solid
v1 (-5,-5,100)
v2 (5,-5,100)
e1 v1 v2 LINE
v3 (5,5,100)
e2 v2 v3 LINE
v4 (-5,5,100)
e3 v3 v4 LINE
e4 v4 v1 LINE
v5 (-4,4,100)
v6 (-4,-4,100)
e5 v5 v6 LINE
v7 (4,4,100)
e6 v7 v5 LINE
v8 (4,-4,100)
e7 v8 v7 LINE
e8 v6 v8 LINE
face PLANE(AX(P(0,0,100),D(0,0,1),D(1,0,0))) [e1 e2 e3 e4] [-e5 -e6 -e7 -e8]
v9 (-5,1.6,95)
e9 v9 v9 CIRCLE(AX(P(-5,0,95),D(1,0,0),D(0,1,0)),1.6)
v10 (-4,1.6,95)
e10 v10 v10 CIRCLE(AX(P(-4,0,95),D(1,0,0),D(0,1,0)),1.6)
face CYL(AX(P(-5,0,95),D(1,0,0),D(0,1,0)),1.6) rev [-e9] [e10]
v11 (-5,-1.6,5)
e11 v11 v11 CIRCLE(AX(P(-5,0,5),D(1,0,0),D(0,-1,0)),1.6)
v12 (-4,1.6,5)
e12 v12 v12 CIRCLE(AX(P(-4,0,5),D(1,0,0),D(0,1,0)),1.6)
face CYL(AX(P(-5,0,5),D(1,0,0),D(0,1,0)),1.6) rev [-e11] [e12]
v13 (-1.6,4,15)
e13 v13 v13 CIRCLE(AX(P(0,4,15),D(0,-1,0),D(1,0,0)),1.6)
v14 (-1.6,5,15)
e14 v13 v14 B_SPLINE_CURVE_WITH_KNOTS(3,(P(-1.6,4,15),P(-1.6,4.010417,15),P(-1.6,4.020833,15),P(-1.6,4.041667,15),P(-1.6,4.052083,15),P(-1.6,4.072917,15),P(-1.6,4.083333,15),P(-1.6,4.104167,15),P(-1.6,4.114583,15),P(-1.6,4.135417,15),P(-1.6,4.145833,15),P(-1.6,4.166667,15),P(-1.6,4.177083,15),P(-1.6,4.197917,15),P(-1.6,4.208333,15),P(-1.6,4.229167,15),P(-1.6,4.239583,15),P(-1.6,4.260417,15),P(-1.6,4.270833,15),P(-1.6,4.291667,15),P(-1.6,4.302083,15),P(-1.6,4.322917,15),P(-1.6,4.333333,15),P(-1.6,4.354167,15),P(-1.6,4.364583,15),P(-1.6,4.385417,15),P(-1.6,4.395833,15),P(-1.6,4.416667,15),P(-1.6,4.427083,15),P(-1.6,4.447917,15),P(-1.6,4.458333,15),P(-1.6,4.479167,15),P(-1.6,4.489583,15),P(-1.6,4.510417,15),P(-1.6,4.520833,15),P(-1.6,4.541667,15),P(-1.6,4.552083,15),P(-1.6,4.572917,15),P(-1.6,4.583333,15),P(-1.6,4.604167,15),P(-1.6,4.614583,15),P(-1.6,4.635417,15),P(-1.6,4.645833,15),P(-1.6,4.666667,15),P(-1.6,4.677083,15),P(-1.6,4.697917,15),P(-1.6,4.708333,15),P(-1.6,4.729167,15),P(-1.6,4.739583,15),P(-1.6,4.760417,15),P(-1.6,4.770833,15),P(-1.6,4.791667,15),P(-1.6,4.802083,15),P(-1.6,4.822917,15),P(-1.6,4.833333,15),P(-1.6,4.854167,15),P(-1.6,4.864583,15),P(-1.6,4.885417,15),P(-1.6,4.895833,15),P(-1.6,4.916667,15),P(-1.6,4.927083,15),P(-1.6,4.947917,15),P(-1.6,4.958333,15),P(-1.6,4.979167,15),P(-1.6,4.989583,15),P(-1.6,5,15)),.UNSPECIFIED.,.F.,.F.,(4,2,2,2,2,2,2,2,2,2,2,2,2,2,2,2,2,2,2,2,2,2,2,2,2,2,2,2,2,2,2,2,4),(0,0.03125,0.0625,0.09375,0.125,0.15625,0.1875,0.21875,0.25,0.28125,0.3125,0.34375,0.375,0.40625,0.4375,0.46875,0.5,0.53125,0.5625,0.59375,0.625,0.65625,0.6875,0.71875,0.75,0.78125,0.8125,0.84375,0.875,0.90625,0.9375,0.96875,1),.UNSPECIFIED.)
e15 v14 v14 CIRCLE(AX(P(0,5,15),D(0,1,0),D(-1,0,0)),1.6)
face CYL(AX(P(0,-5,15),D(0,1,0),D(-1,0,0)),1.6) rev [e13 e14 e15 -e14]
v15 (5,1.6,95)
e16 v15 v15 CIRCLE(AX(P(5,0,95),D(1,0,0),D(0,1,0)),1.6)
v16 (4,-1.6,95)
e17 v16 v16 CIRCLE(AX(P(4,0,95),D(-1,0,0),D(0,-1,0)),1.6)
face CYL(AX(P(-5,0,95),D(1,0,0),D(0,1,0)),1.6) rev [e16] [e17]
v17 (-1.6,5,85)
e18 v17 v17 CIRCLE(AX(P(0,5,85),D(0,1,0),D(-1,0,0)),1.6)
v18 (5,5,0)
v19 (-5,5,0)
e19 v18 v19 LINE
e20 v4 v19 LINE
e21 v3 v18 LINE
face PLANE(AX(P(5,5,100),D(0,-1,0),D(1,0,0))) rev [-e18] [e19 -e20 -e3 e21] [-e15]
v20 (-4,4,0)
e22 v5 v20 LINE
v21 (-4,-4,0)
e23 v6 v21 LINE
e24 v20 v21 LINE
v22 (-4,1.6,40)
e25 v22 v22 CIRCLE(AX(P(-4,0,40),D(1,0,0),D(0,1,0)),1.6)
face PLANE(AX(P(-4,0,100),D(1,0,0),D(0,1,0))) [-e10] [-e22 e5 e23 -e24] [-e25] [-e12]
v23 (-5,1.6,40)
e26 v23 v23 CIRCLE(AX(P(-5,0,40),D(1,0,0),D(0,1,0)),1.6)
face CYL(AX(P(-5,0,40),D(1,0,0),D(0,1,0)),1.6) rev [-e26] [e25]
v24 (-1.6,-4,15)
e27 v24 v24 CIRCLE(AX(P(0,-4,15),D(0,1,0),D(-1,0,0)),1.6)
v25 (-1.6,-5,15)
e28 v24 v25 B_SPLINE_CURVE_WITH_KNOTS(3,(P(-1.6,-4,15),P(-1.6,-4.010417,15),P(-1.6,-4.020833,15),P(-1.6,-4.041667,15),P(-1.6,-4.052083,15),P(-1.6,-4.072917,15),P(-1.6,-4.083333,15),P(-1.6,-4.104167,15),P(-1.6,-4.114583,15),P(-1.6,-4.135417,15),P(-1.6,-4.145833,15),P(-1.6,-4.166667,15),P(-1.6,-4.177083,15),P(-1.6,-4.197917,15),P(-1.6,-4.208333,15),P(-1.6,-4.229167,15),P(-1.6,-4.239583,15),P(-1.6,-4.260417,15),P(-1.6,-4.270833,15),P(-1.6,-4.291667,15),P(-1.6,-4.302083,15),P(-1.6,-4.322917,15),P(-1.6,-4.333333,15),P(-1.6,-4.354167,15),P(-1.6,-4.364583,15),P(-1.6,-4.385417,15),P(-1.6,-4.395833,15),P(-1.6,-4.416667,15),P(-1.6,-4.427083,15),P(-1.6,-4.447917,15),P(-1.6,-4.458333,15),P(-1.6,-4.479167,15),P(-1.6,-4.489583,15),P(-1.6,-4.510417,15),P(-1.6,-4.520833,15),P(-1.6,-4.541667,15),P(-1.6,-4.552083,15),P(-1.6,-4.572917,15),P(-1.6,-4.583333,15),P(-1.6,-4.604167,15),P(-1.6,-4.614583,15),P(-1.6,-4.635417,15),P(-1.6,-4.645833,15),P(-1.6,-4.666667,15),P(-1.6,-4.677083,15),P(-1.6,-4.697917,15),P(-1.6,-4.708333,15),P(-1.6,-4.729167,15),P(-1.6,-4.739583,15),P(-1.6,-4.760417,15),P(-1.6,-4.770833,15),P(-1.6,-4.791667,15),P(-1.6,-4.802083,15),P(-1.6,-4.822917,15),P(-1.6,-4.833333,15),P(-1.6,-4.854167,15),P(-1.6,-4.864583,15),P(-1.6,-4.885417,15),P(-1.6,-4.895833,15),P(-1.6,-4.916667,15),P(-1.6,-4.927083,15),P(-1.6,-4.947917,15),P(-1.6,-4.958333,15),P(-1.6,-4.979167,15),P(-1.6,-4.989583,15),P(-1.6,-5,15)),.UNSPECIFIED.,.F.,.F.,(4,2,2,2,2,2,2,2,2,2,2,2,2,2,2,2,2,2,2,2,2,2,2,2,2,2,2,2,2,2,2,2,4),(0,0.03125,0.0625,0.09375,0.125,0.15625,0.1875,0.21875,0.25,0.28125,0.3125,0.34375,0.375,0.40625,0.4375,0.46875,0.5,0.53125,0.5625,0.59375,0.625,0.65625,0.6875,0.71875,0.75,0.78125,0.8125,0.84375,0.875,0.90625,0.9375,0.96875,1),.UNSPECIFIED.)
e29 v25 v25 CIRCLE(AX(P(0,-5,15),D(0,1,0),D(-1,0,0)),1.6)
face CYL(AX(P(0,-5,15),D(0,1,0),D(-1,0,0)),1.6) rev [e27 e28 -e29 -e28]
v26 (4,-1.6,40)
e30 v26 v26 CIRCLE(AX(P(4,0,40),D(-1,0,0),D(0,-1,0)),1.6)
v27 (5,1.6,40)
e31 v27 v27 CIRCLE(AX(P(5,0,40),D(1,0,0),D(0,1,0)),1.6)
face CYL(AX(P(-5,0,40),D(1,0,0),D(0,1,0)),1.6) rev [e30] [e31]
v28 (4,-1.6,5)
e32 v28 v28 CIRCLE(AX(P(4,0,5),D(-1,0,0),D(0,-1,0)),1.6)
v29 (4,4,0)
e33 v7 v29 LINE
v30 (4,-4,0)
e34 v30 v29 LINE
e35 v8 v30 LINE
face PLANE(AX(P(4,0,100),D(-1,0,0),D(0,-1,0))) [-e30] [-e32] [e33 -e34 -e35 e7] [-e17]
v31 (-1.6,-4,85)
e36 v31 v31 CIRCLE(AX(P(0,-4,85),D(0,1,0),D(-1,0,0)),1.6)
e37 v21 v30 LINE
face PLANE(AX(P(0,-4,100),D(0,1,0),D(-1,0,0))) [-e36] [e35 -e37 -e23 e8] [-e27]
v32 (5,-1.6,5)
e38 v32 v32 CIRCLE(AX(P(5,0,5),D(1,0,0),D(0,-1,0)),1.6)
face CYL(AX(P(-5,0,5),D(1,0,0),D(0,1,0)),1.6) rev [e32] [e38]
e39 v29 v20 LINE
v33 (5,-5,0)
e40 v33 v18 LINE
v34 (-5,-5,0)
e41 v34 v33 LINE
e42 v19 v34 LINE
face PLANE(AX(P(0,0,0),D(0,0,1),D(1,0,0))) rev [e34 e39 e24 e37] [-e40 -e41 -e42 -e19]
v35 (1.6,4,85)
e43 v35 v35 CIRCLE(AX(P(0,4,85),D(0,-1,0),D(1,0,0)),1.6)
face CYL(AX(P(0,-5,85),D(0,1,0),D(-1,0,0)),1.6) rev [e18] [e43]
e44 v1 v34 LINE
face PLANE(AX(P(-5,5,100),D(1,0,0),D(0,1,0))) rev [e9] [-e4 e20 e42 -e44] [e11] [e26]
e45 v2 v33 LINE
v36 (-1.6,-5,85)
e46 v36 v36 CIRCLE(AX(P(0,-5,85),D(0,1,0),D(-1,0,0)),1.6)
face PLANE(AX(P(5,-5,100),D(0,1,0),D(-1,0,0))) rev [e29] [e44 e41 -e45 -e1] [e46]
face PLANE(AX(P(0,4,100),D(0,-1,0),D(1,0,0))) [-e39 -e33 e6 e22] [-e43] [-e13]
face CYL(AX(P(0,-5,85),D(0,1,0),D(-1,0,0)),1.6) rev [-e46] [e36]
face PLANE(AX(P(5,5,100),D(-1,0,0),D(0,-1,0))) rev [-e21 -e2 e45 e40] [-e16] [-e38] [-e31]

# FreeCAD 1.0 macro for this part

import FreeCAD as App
import Part
import Sketcher

V = App.Vector


def add_polygon(sketch, points):
    """Adds a closed chain of lines whose ends are joined by coincident constraints."""
    first, n = sketch.GeometryCount, len(points)
    for a, b in zip(points, points[1:] + points[:1]):
        sketch.addGeometry(Part.LineSegment(App.Vector(*a, 0), App.Vector(*b, 0)), False)
    for i in range(n):
        sketch.addConstraint(Sketcher.Constraint("Coincident", first + i, 2, first + (i + 1) % n, 1))

doc = App.newDocument("Part")
body = doc.addObject("PartDesign::Body", "Body")

# Sketch on XY plane
sketch1 = doc.addObject("Sketcher::SketchObject", "Sketch")
body.addObject(sketch1)
sketch1.AttachmentSupport = (doc.XY_Plane, [""])
sketch1.MapMode = "FlatFace"
add_polygon(sketch1, [(-5, 5), (-5, -5), (5, -5), (5, 5)])  # lines 0-3
add_polygon(sketch1, [(4, -4), (-4, -4), (-4, 4), (4, 4)])  # lines 4-7
sketch1.addConstraint([
    Sketcher.Constraint("Vertical", 0),
    Sketcher.Constraint("Horizontal", 1),
    Sketcher.Constraint("Vertical", 2),
    Sketcher.Constraint("Horizontal", 3),
    Sketcher.Constraint("Horizontal", 4),
    Sketcher.Constraint("Vertical", 5),
    Sketcher.Constraint("Horizontal", 6),
    Sketcher.Constraint("Vertical", 7),
    Sketcher.Constraint("Symmetric", 0, 2, 2, 2, -1, 1),
    Sketcher.Constraint("Symmetric", 4, 2, 6, 2, -1, 1),
    Sketcher.Constraint("Equal", 3, 0),
    Sketcher.Constraint("Equal", 6, 5),
    Sketcher.Constraint("DistanceX", 1, 1, 1, 2, 10.0),
    Sketcher.Constraint("DistanceX", 4, 2, 4, 1, 8.0),
])
pad1 = doc.addObject("PartDesign::Pad", "Pad")
body.addObject(pad1)
pad1.Profile = sketch1
pad1.Length = 100

# Sketch on YZ plane
sketch2 = doc.addObject("Sketcher::SketchObject", "Sketch001")
body.addObject(sketch2)
sketch2.AttachmentSupport = (doc.YZ_Plane, [""])
sketch2.MapMode = "FlatFace"
sketch2.AttachmentOffset = App.Placement(V(0, 0, 5), App.Rotation())
sketch2.addGeometry([
    Part.Circle(V(0, 95, 0), V(0, 0, 1), 1.6),
    Part.Circle(V(0, 5, 0), V(0, 0, 1), 1.6),
    Part.Circle(V(0, 40, 0), V(0, 0, 1), 1.6),
], False)
sketch2.addConstraint([
    Sketcher.Constraint("Equal", 0, 1),
    Sketcher.Constraint("Equal", 1, 2),
    Sketcher.Constraint("PointOnObject", 0, 3, -2),
    Sketcher.Constraint("PointOnObject", 1, 3, -2),
    Sketcher.Constraint("PointOnObject", 2, 3, -2),
    Sketcher.Constraint("Diameter", 0, 3.2),
    Sketcher.Constraint("DistanceY", -1, 1, 0, 3, 95.0),
    Sketcher.Constraint("DistanceY", -1, 1, 1, 3, 5.0),
    Sketcher.Constraint("DistanceY", -1, 1, 2, 3, 40.0),
])
pocket1 = doc.addObject("PartDesign::Pocket", "Pocket")
body.addObject(pocket1)
pocket1.Profile = sketch2
pocket1.Type = "ThroughAll"

# Sketch on XZ plane
sketch3 = doc.addObject("Sketcher::SketchObject", "Sketch002")
body.addObject(sketch3)
sketch3.AttachmentSupport = (doc.XZ_Plane, [""])
sketch3.MapMode = "FlatFace"
sketch3.AttachmentOffset = App.Placement(V(0, 0, -5), App.Rotation())
sketch3.addGeometry(Part.Circle(V(0, 15, 0), V(0, 0, 1), 1.6), False)
sketch3.addConstraint([
    Sketcher.Constraint("PointOnObject", 0, 3, -2),
    Sketcher.Constraint("Diameter", 0, 3.2),
    Sketcher.Constraint("DistanceY", -1, 1, 0, 3, 15.0),
])
pocket2 = doc.addObject("PartDesign::Pocket", "Pocket001")
body.addObject(pocket2)
pocket2.Profile = sketch3
pocket2.Type = "ThroughAll"
pocket2.Reversed = True

# Sketch on XZ plane
sketch4 = doc.addObject("Sketcher::SketchObject", "Sketch003")
body.addObject(sketch4)
sketch4.AttachmentSupport = (doc.XZ_Plane, [""])
sketch4.MapMode = "FlatFace"
sketch4.AttachmentOffset = App.Placement(V(0, 0, -5), App.Rotation())
sketch4.addGeometry(Part.Circle(V(0, 85, 0), V(0, 0, 1), 1.6), False)
sketch4.addConstraint([
    Sketcher.Constraint("PointOnObject", 0, 3, -2),
    Sketcher.Constraint("Diameter", 0, 3.2),
    Sketcher.Constraint("DistanceY", -1, 1, 0, 3, 85.0),
])
pocket3 = doc.addObject("PartDesign::Pocket", "Pocket002")
body.addObject(pocket3)
pocket3.Profile = sketch4
pocket3.Type = "ThroughAll"
pocket3.Reversed = True

doc.recompute()
